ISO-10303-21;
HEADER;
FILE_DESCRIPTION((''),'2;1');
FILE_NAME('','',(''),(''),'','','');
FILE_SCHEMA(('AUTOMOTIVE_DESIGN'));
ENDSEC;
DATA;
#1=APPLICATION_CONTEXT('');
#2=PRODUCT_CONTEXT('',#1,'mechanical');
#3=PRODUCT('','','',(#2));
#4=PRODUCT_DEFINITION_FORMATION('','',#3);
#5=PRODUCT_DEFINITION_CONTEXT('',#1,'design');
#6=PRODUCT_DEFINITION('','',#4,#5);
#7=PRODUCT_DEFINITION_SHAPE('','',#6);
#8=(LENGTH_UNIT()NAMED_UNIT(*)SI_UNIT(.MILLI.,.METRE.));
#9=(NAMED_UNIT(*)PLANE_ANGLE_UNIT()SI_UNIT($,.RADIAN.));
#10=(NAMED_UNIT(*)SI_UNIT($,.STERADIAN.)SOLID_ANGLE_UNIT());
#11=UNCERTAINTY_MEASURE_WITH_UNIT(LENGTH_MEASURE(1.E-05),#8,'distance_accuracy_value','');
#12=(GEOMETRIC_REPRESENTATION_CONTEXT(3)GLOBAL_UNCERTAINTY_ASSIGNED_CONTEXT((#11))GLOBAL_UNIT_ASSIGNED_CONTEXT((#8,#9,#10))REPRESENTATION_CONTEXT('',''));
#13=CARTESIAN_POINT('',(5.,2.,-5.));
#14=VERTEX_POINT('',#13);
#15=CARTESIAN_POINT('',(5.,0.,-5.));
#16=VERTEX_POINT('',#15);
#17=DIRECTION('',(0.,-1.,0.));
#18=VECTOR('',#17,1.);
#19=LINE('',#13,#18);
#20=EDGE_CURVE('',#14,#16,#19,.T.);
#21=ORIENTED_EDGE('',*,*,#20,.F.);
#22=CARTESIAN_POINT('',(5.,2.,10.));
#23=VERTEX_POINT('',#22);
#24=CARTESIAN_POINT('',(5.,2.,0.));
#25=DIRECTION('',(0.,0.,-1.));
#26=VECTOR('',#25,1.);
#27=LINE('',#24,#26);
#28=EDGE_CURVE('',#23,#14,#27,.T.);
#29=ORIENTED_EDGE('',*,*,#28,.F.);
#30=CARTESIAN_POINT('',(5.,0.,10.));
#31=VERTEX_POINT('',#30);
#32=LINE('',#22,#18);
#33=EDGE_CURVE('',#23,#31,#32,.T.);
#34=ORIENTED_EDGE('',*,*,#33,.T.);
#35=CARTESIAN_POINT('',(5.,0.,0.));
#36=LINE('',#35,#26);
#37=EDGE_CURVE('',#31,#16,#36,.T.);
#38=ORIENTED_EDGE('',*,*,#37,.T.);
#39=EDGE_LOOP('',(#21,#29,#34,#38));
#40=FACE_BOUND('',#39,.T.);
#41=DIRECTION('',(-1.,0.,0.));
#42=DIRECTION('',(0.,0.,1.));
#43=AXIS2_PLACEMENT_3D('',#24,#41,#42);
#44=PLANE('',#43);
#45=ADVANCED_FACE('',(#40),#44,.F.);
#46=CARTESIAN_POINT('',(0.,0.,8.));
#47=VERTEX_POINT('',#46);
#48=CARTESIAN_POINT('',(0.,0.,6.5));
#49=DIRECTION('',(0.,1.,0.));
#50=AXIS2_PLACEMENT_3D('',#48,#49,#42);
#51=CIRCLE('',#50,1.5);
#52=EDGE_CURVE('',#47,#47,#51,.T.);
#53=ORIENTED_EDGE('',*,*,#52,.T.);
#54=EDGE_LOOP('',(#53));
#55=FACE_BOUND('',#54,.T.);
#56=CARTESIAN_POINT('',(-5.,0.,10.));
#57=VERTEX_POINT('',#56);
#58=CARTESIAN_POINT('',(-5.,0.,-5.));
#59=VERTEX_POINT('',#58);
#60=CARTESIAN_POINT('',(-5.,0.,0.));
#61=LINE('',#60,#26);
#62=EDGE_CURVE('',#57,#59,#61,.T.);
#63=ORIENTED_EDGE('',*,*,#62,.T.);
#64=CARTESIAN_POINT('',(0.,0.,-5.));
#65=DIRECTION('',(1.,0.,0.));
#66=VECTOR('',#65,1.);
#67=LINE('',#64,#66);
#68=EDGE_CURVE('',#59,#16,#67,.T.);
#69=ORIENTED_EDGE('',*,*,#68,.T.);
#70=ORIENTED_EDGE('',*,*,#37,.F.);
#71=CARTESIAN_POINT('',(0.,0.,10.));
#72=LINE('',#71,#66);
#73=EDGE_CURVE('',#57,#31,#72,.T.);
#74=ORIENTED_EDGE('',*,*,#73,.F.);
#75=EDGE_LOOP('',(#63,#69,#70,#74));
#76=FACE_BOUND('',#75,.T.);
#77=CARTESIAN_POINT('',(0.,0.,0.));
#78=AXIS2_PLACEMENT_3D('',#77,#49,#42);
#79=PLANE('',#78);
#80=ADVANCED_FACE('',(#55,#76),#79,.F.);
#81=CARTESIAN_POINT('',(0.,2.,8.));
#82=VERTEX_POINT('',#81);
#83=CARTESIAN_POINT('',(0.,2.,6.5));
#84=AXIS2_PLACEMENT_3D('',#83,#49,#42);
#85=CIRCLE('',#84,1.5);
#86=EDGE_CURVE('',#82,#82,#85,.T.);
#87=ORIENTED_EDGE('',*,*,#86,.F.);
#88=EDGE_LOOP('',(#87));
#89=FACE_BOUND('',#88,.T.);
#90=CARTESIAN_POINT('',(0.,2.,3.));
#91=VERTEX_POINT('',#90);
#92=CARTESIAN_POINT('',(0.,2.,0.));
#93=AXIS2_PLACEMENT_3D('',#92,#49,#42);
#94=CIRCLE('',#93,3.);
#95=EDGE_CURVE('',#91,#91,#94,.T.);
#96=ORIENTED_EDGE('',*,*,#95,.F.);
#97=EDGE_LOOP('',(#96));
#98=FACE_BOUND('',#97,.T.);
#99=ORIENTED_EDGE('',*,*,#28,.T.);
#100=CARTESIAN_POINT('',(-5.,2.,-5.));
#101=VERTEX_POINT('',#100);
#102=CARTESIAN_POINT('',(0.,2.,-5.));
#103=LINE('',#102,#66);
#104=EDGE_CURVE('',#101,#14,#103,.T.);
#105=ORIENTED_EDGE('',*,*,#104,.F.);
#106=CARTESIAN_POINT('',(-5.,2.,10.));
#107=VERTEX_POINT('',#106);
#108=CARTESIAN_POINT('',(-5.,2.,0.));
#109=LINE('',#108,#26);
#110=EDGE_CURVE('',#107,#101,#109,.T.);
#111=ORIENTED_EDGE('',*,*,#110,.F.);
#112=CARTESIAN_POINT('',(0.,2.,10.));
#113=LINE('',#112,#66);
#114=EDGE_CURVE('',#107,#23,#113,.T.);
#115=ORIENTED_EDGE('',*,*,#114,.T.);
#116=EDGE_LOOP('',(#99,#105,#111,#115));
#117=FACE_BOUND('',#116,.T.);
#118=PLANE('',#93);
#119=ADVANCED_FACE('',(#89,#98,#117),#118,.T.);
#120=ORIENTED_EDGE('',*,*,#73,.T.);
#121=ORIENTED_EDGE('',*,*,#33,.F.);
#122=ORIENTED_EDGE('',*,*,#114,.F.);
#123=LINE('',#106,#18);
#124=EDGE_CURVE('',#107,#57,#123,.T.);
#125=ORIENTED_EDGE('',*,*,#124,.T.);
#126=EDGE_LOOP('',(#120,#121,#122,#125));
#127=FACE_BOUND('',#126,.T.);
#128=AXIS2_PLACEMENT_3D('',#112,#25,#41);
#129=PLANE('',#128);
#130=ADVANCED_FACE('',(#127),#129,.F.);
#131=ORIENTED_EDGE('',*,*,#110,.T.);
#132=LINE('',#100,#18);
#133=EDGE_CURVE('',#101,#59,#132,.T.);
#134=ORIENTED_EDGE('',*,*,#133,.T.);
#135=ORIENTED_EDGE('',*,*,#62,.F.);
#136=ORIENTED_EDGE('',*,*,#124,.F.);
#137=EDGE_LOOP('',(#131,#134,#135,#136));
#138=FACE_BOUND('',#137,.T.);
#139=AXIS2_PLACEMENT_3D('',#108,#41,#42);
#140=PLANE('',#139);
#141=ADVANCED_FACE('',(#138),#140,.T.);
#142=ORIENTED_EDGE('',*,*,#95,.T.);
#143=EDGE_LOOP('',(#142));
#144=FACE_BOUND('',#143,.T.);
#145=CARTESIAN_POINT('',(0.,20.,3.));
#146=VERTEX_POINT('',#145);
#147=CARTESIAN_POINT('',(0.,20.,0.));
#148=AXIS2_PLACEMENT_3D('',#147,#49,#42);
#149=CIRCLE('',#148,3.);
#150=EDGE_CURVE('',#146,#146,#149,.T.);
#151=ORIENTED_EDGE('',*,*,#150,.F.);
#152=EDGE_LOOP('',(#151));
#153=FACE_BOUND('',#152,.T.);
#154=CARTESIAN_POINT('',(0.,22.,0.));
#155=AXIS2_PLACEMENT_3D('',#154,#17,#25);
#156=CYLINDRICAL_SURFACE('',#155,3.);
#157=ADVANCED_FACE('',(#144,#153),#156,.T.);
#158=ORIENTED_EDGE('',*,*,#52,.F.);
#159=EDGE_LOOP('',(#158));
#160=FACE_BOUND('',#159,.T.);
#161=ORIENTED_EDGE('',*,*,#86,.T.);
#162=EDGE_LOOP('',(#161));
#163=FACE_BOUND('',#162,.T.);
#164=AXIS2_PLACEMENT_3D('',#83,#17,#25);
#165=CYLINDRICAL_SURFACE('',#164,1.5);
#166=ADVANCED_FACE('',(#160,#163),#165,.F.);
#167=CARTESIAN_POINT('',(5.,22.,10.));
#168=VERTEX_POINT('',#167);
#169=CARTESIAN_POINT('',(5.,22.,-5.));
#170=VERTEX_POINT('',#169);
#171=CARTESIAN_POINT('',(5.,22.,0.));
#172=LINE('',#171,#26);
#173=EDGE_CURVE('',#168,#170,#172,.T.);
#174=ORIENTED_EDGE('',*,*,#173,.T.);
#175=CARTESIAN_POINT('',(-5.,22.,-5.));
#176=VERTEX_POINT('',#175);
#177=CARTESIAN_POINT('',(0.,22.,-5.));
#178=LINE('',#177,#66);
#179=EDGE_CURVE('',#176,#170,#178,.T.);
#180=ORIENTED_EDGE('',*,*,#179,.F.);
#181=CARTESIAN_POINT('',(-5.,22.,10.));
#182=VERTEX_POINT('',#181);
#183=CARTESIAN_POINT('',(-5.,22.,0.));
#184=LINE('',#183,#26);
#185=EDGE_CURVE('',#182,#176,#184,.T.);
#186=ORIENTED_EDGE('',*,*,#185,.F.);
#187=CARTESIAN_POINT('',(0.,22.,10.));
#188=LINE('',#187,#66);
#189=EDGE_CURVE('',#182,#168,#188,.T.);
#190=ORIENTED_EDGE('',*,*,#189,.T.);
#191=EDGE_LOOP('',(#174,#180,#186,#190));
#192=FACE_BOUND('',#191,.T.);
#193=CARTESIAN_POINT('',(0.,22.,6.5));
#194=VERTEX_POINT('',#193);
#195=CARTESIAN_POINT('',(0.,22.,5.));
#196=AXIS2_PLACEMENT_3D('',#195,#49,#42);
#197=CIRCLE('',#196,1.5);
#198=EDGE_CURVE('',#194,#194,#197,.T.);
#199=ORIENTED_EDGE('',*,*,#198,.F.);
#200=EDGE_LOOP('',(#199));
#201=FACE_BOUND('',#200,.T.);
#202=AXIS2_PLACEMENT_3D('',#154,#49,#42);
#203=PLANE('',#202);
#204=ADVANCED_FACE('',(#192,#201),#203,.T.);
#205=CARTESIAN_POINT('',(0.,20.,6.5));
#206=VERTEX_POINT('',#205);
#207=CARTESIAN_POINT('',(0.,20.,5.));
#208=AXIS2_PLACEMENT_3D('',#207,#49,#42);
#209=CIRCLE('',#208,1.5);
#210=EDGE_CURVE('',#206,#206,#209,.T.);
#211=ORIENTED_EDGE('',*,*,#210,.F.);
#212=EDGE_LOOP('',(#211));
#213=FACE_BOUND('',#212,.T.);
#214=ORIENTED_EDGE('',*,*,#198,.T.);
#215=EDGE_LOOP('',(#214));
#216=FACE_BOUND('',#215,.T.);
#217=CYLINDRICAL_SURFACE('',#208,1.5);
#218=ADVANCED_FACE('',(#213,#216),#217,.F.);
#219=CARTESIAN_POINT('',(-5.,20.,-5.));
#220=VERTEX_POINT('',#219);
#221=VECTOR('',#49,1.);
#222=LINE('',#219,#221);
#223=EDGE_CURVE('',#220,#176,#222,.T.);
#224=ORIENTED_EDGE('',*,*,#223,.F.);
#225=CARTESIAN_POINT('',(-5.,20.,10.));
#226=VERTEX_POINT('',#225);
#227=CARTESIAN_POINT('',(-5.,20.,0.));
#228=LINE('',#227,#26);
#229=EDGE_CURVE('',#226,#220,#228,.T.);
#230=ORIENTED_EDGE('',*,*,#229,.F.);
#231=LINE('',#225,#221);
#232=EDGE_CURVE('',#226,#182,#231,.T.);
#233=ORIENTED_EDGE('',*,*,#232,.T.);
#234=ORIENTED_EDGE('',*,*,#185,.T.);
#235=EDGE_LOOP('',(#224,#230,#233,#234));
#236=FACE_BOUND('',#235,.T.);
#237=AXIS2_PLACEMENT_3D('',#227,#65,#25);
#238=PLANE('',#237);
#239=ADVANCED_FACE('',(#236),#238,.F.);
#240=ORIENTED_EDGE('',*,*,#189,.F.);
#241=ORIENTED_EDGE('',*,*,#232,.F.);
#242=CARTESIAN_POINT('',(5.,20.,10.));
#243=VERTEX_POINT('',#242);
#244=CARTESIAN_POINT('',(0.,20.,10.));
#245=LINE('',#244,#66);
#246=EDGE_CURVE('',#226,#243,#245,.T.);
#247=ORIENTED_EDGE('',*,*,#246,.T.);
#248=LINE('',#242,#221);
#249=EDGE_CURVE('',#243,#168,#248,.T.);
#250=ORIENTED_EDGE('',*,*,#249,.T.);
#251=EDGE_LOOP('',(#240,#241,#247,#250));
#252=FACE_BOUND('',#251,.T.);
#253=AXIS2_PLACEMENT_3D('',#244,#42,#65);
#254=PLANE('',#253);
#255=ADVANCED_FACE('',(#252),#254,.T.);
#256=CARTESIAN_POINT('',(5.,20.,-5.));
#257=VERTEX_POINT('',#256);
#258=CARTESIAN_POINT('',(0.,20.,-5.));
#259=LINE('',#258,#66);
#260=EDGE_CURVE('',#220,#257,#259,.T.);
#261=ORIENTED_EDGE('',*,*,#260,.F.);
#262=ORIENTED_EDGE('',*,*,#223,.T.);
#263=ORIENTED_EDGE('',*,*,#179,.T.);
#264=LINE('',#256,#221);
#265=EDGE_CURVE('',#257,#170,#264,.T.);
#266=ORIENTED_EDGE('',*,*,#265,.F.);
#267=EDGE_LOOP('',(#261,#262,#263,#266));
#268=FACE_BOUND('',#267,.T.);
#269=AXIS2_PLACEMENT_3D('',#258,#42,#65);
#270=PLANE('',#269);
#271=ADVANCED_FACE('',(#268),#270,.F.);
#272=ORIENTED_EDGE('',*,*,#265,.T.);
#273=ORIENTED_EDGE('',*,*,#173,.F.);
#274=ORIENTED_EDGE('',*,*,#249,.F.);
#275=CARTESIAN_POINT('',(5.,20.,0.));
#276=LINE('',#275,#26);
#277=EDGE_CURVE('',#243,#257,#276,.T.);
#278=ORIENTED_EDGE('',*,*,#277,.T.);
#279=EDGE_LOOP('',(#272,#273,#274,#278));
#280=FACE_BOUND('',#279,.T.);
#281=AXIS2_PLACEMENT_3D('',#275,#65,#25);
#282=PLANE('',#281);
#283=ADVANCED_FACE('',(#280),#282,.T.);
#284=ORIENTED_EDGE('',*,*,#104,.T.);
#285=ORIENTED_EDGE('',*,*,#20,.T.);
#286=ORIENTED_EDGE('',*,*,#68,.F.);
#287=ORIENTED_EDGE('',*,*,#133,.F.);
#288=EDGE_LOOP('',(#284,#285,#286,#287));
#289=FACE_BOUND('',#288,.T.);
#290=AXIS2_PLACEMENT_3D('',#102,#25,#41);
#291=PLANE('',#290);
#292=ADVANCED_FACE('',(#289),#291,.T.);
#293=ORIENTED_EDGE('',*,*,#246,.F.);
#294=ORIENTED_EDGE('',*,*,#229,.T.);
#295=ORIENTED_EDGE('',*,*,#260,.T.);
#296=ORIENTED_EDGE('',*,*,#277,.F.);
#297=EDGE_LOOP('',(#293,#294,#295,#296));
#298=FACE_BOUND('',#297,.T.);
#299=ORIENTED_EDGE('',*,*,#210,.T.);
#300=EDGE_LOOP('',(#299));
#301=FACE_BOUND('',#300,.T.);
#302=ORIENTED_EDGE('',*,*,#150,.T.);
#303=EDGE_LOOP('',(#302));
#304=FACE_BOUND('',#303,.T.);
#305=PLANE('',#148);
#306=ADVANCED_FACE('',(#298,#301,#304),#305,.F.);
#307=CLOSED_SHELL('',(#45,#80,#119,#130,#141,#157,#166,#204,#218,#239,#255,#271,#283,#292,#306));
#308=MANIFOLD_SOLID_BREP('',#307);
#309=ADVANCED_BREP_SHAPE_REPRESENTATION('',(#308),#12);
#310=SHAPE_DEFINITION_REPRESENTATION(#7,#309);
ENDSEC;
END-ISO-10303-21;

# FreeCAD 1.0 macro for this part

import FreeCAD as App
import Part
import Sketcher

doc = App.newDocument("Part")
body = doc.addObject("PartDesign::Body", "Body")

# Sketch on XZ plane
sketch1 = body.newObject("Sketcher::SketchObject", "Sketch")
sketch1.AttachmentSupport = (doc.getObject("XZ_Plane"), [""])
sketch1.MapMode = "FlatFace"
sketch1.addGeometry([
    Part.LineSegment(App.Vector(-5, -5, 0), App.Vector(-5, 10, 0)),  # 0
    Part.LineSegment(App.Vector(-5, 10, 0), App.Vector(5, 10, 0)),  # 1
    Part.LineSegment(App.Vector(5, 10, 0), App.Vector(5, -5, 0)),  # 2
    Part.LineSegment(App.Vector(5, -5, 0), App.Vector(-5, -5, 0)),  # 3
    Part.Circle(App.Vector(0, 6.5, 0), App.Vector(0, 0, 1), 1.5),  # 4
], False)
sketch1.addConstraint([
    Sketcher.Constraint("Coincident", 0, 2, 1, 1),
    Sketcher.Constraint("Coincident", 1, 2, 2, 1),
    Sketcher.Constraint("Coincident", 2, 2, 3, 1),
    Sketcher.Constraint("Coincident", 3, 2, 0, 1),
    Sketcher.Constraint("Vertical", 0),
    Sketcher.Constraint("Horizontal", 1),
    Sketcher.Constraint("Vertical", 2),
    Sketcher.Constraint("Horizontal", 3),
    Sketcher.Constraint("PointOnObject", 4, 3, -2),
    Sketcher.Constraint("Diameter", 4, 3.0),
    Sketcher.Constraint("DistanceX", 1, 1, 1, 2, 10.0),
    Sketcher.Constraint("DistanceY", 0, 1, 0, 2, 15.0),
    Sketcher.Constraint("DistanceX", 0, 2, -1, 1, 5.0),
    Sketcher.Constraint("DistanceY", -1, 1, 0, 2, 10.0),
    Sketcher.Constraint("DistanceY", -1, 1, 4, 3, 6.5),
])
pad1 = body.newObject("PartDesign::Pad", "Pad")
pad1.Profile = sketch1
pad1.Length = 2
pad1.Reversed = True

# Sketch on XZ plane
sketch2 = body.newObject("Sketcher::SketchObject", "Sketch001")
sketch2.AttachmentSupport = (doc.getObject("XZ_Plane"), [""])
sketch2.MapMode = "FlatFace"
sketch2.AttachmentOffset = App.Placement(App.Vector(0, 0, -2), App.Rotation())
sketch2.addGeometry(Part.Circle(App.Vector(0, 0, 0), App.Vector(0, 0, 1), 3), False)
sketch2.addConstraint([
    Sketcher.Constraint("Coincident", 0, 3, -1, 1),
    Sketcher.Constraint("Diameter", 0, 6.0),
])
pad2 = body.newObject("PartDesign::Pad", "Pad001")
pad2.Profile = sketch2
pad2.Length = 20
pad2.Reversed = True

# Sketch on XZ plane
sketch3 = body.newObject("Sketcher::SketchObject", "Sketch002")
sketch3.AttachmentSupport = (doc.getObject("XZ_Plane"), [""])
sketch3.MapMode = "FlatFace"
sketch3.AttachmentOffset = App.Placement(App.Vector(0, 0, -22), App.Rotation())
sketch3.addGeometry([
    Part.LineSegment(App.Vector(-5, -5, 0), App.Vector(-5, 10, 0)),  # 0
    Part.LineSegment(App.Vector(-5, 10, 0), App.Vector(5, 10, 0)),  # 1
    Part.LineSegment(App.Vector(5, 10, 0), App.Vector(5, -5, 0)),  # 2
    Part.LineSegment(App.Vector(5, -5, 0), App.Vector(-5, -5, 0)),  # 3
    Part.Circle(App.Vector(0, 5, 0), App.Vector(0, 0, 1), 1.5),  # 4
], False)
sketch3.addConstraint([
    Sketcher.Constraint("Coincident", 0, 2, 1, 1),
    Sketcher.Constraint("Coincident", 1, 2, 2, 1),
    Sketcher.Constraint("Coincident", 2, 2, 3, 1),
    Sketcher.Constraint("Coincident", 3, 2, 0, 1),
    Sketcher.Constraint("Vertical", 0),
    Sketcher.Constraint("Horizontal", 1),
    Sketcher.Constraint("Vertical", 2),
    Sketcher.Constraint("Horizontal", 3),
    Sketcher.Constraint("PointOnObject", 4, 3, -2),
    Sketcher.Constraint("Diameter", 4, 3.0),
    Sketcher.Constraint("DistanceX", 1, 1, 1, 2, 10.0),
    Sketcher.Constraint("DistanceY", 0, 1, 0, 2, 15.0),
    Sketcher.Constraint("DistanceY", -1, 1, 4, 3, 5.0),
    Sketcher.Constraint("DistanceX", 0, 2, -1, 1, 5.0),
    Sketcher.Constraint("DistanceY", -1, 1, 0, 2, 10.0),
])
pad3 = body.newObject("PartDesign::Pad", "Pad002")
pad3.Profile = sketch3
pad3.Length = 2

doc.recompute()
